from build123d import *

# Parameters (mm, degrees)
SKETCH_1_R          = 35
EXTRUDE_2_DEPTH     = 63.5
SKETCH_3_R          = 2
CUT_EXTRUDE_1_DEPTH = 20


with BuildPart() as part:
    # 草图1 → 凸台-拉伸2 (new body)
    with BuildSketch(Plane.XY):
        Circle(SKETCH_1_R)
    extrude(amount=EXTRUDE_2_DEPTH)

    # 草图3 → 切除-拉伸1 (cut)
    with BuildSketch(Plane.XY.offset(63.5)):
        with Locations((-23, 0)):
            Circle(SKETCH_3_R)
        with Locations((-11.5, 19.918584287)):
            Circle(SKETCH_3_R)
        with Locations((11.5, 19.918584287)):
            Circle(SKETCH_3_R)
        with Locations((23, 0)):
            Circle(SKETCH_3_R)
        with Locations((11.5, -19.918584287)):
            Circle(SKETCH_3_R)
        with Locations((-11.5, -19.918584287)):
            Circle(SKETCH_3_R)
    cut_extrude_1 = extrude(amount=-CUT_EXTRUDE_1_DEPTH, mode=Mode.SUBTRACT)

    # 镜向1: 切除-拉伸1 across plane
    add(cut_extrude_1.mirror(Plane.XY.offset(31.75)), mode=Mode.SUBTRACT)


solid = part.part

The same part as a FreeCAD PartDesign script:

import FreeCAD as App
import Part
import Sketcher
from FreeCAD import Vector

doc = App.newDocument("Part")
body = doc.addObject("PartDesign::Body", "Body")

# Sketch on XY plane
sketch1 = body.newObject("Sketcher::SketchObject", "Sketch")
sketch1.AttachmentSupport = (doc.getObject("XY_Plane"), [""])
sketch1.MapMode = "FlatFace"
sketch1.addGeometry(Part.Circle(Vector(0, 0, 0), Vector(0, 0, 1), 35), False)
sketch1.addConstraint(Sketcher.Constraint("Coincident", 0, 3, -1, 1))
sketch1.addConstraint(Sketcher.Constraint("Diameter", 0, 70.0))
pad1 = body.newObject("PartDesign::Pad", "Pad")
pad1.Profile = sketch1
pad1.Length = 63.5

# Sketch on XY plane
sketch2 = body.newObject("Sketcher::SketchObject", "Sketch001")
sketch2.AttachmentSupport = (doc.getObject("XY_Plane"), [""])
sketch2.MapMode = "FlatFace"
sketch2.AttachmentOffset = App.Placement(Vector(0, 0, 63.5), App.Rotation())
sketch2.addGeometry(Part.Circle(Vector(-23, 0, 0), Vector(0, 0, 1), 2), False)
sketch2.addGeometry(Part.Circle(Vector(-11.5, 19.9, 0), Vector(0, 0, 1), 2), False)
sketch2.addGeometry(Part.Circle(Vector(11.5, 19.9, 0), Vector(0, 0, 1), 2), False)
sketch2.addGeometry(Part.Circle(Vector(23, 0, 0), Vector(0, 0, 1), 2), False)
sketch2.addGeometry(Part.Circle(Vector(11.5, -19.9, 0), Vector(0, 0, 1), 2), False)
sketch2.addGeometry(Part.Circle(Vector(-11.5, -19.9, 0), Vector(0, 0, 1), 2), False)
sketch2.addConstraint(Sketcher.Constraint("Equal", 0, 1))
sketch2.addConstraint(Sketcher.Constraint("Equal", 1, 2))
sketch2.addConstraint(Sketcher.Constraint("Equal", 2, 3))
sketch2.addConstraint(Sketcher.Constraint("Equal", 3, 4))
sketch2.addConstraint(Sketcher.Constraint("Equal", 4, 5))
sketch2.addConstraint(Sketcher.Constraint("Symmetric", 0, 3, 3, 3, -1, 1))
sketch2.addConstraint(Sketcher.Constraint("Symmetric", 1, 3, 4, 3, -1, 1))
sketch2.addConstraint(Sketcher.Constraint("Symmetric", 2, 3, 5, 3, -1, 1))
sketch2.addConstraint(Sketcher.Constraint("Symmetric", 1, 3, 2, 3, -2))
sketch2.addConstraint(Sketcher.Constraint("PointOnObject", 0, 3, -1))
sketch2.addConstraint(Sketcher.Constraint("Diameter", 0, 4.0))
sketch2.addConstraint(Sketcher.Constraint("DistanceX", 0, 3, -1, 1, 23.0))
sketch2.addConstraint(Sketcher.Constraint("DistanceX", 1, 3, 2, 3, 23.0))
sketch2.addConstraint(Sketcher.Constraint("DistanceY", 4, 3, 2, 3, 39.837169))
pocket1 = body.newObject("PartDesign::Pocket", "Pocket")
pocket1.Profile = sketch2
pocket1.Length = 20
doc.recompute()

datumplane = body.newObject("PartDesign::Plane", "DatumPlane")
datumplane.AttachmentSupport = (doc.getObject("XY_Plane"), [""])
datumplane.MapMode = "FlatFace"
datumplane.AttachmentOffset = App.Placement(Vector(0, 0, 31.75), App.Rotation())
mirrored = body.newObject("PartDesign::Mirrored", "Mirrored")
mirrored.Originals = [pocket1]
mirrored.MirrorPlane = (datumplane, [""])
body.Tip = mirrored

doc.recompute()
